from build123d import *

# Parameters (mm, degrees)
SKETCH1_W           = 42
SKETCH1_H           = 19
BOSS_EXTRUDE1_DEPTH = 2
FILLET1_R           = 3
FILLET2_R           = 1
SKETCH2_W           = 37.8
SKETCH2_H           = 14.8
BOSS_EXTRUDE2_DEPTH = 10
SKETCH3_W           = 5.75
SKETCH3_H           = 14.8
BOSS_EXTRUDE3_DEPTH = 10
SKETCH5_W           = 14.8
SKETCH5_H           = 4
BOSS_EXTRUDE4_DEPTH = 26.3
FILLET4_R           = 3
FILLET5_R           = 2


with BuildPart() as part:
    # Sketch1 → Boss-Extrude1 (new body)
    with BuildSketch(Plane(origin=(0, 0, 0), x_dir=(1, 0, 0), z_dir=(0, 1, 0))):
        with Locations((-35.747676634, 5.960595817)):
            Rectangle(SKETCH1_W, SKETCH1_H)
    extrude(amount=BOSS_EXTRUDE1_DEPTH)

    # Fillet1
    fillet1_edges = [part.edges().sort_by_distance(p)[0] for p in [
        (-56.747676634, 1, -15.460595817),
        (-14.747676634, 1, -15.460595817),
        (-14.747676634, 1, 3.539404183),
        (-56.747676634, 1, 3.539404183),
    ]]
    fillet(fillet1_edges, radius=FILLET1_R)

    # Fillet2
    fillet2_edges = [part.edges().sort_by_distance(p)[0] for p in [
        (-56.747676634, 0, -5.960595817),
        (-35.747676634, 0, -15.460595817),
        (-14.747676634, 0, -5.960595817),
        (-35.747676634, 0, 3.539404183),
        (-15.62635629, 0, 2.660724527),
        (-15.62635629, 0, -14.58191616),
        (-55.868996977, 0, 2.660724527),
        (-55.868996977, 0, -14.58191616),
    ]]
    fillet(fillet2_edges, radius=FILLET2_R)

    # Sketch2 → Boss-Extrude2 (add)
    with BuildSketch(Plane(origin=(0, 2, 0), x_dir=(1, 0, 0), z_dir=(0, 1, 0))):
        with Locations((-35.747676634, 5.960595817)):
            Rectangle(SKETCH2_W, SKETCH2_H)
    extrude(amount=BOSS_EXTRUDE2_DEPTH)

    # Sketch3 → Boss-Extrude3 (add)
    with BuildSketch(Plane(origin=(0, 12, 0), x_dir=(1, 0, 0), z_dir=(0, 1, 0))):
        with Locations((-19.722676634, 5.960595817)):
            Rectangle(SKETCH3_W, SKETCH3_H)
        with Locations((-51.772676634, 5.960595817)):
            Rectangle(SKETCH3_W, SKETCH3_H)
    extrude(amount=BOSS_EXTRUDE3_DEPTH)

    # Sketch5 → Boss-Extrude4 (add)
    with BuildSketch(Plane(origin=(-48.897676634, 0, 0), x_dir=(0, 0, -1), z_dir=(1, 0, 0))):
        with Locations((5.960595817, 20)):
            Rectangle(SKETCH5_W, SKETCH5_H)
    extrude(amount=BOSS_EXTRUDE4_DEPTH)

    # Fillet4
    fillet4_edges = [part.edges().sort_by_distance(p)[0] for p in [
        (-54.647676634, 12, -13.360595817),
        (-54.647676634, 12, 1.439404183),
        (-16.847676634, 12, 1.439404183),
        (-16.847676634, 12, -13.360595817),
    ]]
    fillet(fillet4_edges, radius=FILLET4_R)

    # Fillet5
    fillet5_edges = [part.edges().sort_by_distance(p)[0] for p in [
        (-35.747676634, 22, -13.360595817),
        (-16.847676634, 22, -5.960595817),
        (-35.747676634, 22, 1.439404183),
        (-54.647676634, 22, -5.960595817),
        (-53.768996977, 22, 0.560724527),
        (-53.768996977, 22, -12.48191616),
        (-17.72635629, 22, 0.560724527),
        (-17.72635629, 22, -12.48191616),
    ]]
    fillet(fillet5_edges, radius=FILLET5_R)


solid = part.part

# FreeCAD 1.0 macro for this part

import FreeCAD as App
import Part
import Sketcher

V = App.Vector


def edges_at(feature, points):
    """Names of the edges that pass closest to the given points."""
    edges = feature.Shape.Edges
    near = lambda p: min(range(len(edges)), key=lambda i: edges[i].distToShape(Part.Vertex(*p))[0])
    return sorted({f"Edge{near(p) + 1}" for p in points})


def add_polygon(sketch, points):
    """Adds a closed chain of lines whose ends are joined by coincident constraints."""
    first, n = sketch.GeometryCount, len(points)
    for a, b in zip(points, points[1:] + points[:1]):
        sketch.addGeometry(Part.LineSegment(App.Vector(*a, 0), App.Vector(*b, 0)), False)
    for i in range(n):
        sketch.addConstraint(Sketcher.Constraint("Coincident", first + i, 2, first + (i + 1) % n, 1))

doc = App.newDocument("Part")
body = doc.addObject("PartDesign::Body", "Body")

sketch1 = body.newObject("Sketcher::SketchObject", "Sketch")
sketch1.AttachmentSupport = (doc.getObject("XZ_Plane"), [""])
sketch1.MapMode = "FlatFace"
add_polygon(sketch1, [(-57, -15), (-57, 4), (-15, 4), (-15, -15)])
sketch1.addConstraint([
    Sketcher.Constraint("Vertical", 0),
    Sketcher.Constraint("Horizontal", 1),
    Sketcher.Constraint("Vertical", 2),
    Sketcher.Constraint("Horizontal", 3),
    Sketcher.Constraint("DistanceX", 1, 1, 1, 2, 42.0),
    Sketcher.Constraint("DistanceY", 0, 1, 0, 2, 19.0),
    Sketcher.Constraint("DistanceX", 0, 2, -1, 1, 56.747677),
    Sketcher.Constraint("DistanceY", -1, 1, 0, 2, 3.539404),
])
pad1 = body.newObject("PartDesign::Pad", "Pad")
pad1.Profile = sketch1
pad1.Length = 2
pad1.Reversed = True
doc.recompute()

fillet = body.newObject("PartDesign::Fillet", "Fillet")
fillet.Base = (pad1, edges_at(pad1, [
    (-56.748, 1, -15.461),
    (-14.748, 1, -15.461),
    (-14.748, 1, 3.539),
    (-56.748, 1, 3.539),
]))
fillet.Radius = 3
doc.recompute()

fillet2 = body.newObject("PartDesign::Fillet", "Fillet001")
fillet2.Base = (fillet, edges_at(fillet, [
    (-56.748, 0, -5.961),
    (-35.748, 0, -15.461),
    (-14.748, 0, -5.961),
    (-35.748, 0, 3.539),
    (-15.626, 0, 2.661),
    (-15.626, 0, -14.582),
    (-55.869, 0, 2.661),
    (-55.869, 0, -14.582),
]))
fillet2.Radius = 1

sketch2 = body.newObject("Sketcher::SketchObject", "Sketch001")
sketch2.AttachmentSupport = (doc.getObject("XZ_Plane"), [""])
sketch2.MapMode = "FlatFace"
sketch2.AttachmentOffset = App.Placement(V(0, 0, -2), App.Rotation())
add_polygon(sketch2, [(-55, -13), (-55, 1), (-17, 1), (-17, -13)])
sketch2.addConstraint([
    Sketcher.Constraint("Vertical", 0),
    Sketcher.Constraint("Horizontal", 1),
    Sketcher.Constraint("Vertical", 2),
    Sketcher.Constraint("Horizontal", 3),
    Sketcher.Constraint("DistanceX", 1, 1, 1, 2, 37.8),
    Sketcher.Constraint("DistanceY", 0, 1, 0, 2, 14.8),
    Sketcher.Constraint("DistanceX", 0, 2, -1, 1, 54.647677),
    Sketcher.Constraint("DistanceY", -1, 1, 0, 2, 1.439404),
])
pad2 = body.newObject("PartDesign::Pad", "Pad001")
pad2.Profile = sketch2
pad2.Length = 10
pad2.Reversed = True

sketch3 = body.newObject("Sketcher::SketchObject", "Sketch002")
sketch3.AttachmentSupport = (doc.getObject("XZ_Plane"), [""])
sketch3.MapMode = "FlatFace"
sketch3.AttachmentOffset = App.Placement(V(0, 0, -12), App.Rotation())
add_polygon(sketch3, [(-23, -13), (-23, 1), (-17, 1), (-17, -13)])
add_polygon(sketch3, [(-55, -13), (-55, 1), (-49, 1), (-49, -13)])
sketch3.addConstraint([
    Sketcher.Constraint("Vertical", 0),
    Sketcher.Constraint("Horizontal", 1),
    Sketcher.Constraint("Vertical", 2),
    Sketcher.Constraint("Horizontal", 3),
    Sketcher.Constraint("Vertical", 4),
    Sketcher.Constraint("Horizontal", 5),
    Sketcher.Constraint("Vertical", 6),
    Sketcher.Constraint("Horizontal", 7),
    Sketcher.Constraint("Horizontal", 1, 2, 4, 2),
    Sketcher.Constraint("Horizontal", 3, 2, 6, 2),
    Sketcher.Constraint("Equal", 3, 5),
    Sketcher.Constraint("DistanceY", 0, 1, 0, 2, 14.8),
    Sketcher.Constraint("DistanceX", 1, 1, 1, 2, 5.75),
    Sketcher.Constraint("DistanceX", 4, 2, 1, 2, 37.8),
    Sketcher.Constraint("DistanceX", 0, 2, -1, 1, 22.597677),
    Sketcher.Constraint("DistanceY", -1, 1, 0, 2, 1.439404),
])
pad3 = body.newObject("PartDesign::Pad", "Pad002")
pad3.Profile = sketch3
pad3.Length = 10
pad3.Reversed = True

sketch4 = body.newObject("Sketcher::SketchObject", "Sketch003")
sketch4.AttachmentSupport = (doc.getObject("YZ_Plane"), [""])
sketch4.MapMode = "FlatFace"
sketch4.AttachmentOffset = App.Placement(V(0, 0, -48.897677), App.Rotation())
add_polygon(sketch4, [(22, 1.4), (18, 1.4), (18, -13.4), (22, -13.4)])
sketch4.addConstraint([
    Sketcher.Constraint("Horizontal", 0),
    Sketcher.Constraint("Vertical", 1),
    Sketcher.Constraint("Horizontal", 2),
    Sketcher.Constraint("Vertical", 3),
    Sketcher.Constraint("DistanceX", 0, 2, 0, 1, 4.0),
    Sketcher.Constraint("DistanceY", 1, 2, 1, 1, 14.8),
    Sketcher.Constraint("DistanceX", -1, 1, 0, 2, 18.0),
    Sketcher.Constraint("DistanceY", -1, 1, 0, 2, 1.439404),
])
pad4 = body.newObject("PartDesign::Pad", "Pad003")
pad4.Profile = sketch4
pad4.Length = 26.3
doc.recompute()

fillet3 = body.newObject("PartDesign::Fillet", "Fillet002")
fillet3.Base = (pad4, edges_at(pad4, [
    (-54.648, 12, -13.361),
    (-54.648, 12, 1.439),
    (-16.848, 12, 1.439),
    (-16.848, 12, -13.361),
]))
fillet3.Radius = 3
doc.recompute()

fillet4 = body.newObject("PartDesign::Fillet", "Fillet003")
fillet4.Base = (fillet3, edges_at(fillet3, [
    (-35.748, 22, -13.361),
    (-16.848, 22, -5.961),
    (-35.748, 22, 1.439),
    (-54.648, 22, -5.961),
    (-53.769, 22, 0.561),
    (-53.769, 22, -12.482),
    (-17.726, 22, 0.561),
    (-17.726, 22, -12.482),
]))
fillet4.Radius = 2

doc.recompute()
